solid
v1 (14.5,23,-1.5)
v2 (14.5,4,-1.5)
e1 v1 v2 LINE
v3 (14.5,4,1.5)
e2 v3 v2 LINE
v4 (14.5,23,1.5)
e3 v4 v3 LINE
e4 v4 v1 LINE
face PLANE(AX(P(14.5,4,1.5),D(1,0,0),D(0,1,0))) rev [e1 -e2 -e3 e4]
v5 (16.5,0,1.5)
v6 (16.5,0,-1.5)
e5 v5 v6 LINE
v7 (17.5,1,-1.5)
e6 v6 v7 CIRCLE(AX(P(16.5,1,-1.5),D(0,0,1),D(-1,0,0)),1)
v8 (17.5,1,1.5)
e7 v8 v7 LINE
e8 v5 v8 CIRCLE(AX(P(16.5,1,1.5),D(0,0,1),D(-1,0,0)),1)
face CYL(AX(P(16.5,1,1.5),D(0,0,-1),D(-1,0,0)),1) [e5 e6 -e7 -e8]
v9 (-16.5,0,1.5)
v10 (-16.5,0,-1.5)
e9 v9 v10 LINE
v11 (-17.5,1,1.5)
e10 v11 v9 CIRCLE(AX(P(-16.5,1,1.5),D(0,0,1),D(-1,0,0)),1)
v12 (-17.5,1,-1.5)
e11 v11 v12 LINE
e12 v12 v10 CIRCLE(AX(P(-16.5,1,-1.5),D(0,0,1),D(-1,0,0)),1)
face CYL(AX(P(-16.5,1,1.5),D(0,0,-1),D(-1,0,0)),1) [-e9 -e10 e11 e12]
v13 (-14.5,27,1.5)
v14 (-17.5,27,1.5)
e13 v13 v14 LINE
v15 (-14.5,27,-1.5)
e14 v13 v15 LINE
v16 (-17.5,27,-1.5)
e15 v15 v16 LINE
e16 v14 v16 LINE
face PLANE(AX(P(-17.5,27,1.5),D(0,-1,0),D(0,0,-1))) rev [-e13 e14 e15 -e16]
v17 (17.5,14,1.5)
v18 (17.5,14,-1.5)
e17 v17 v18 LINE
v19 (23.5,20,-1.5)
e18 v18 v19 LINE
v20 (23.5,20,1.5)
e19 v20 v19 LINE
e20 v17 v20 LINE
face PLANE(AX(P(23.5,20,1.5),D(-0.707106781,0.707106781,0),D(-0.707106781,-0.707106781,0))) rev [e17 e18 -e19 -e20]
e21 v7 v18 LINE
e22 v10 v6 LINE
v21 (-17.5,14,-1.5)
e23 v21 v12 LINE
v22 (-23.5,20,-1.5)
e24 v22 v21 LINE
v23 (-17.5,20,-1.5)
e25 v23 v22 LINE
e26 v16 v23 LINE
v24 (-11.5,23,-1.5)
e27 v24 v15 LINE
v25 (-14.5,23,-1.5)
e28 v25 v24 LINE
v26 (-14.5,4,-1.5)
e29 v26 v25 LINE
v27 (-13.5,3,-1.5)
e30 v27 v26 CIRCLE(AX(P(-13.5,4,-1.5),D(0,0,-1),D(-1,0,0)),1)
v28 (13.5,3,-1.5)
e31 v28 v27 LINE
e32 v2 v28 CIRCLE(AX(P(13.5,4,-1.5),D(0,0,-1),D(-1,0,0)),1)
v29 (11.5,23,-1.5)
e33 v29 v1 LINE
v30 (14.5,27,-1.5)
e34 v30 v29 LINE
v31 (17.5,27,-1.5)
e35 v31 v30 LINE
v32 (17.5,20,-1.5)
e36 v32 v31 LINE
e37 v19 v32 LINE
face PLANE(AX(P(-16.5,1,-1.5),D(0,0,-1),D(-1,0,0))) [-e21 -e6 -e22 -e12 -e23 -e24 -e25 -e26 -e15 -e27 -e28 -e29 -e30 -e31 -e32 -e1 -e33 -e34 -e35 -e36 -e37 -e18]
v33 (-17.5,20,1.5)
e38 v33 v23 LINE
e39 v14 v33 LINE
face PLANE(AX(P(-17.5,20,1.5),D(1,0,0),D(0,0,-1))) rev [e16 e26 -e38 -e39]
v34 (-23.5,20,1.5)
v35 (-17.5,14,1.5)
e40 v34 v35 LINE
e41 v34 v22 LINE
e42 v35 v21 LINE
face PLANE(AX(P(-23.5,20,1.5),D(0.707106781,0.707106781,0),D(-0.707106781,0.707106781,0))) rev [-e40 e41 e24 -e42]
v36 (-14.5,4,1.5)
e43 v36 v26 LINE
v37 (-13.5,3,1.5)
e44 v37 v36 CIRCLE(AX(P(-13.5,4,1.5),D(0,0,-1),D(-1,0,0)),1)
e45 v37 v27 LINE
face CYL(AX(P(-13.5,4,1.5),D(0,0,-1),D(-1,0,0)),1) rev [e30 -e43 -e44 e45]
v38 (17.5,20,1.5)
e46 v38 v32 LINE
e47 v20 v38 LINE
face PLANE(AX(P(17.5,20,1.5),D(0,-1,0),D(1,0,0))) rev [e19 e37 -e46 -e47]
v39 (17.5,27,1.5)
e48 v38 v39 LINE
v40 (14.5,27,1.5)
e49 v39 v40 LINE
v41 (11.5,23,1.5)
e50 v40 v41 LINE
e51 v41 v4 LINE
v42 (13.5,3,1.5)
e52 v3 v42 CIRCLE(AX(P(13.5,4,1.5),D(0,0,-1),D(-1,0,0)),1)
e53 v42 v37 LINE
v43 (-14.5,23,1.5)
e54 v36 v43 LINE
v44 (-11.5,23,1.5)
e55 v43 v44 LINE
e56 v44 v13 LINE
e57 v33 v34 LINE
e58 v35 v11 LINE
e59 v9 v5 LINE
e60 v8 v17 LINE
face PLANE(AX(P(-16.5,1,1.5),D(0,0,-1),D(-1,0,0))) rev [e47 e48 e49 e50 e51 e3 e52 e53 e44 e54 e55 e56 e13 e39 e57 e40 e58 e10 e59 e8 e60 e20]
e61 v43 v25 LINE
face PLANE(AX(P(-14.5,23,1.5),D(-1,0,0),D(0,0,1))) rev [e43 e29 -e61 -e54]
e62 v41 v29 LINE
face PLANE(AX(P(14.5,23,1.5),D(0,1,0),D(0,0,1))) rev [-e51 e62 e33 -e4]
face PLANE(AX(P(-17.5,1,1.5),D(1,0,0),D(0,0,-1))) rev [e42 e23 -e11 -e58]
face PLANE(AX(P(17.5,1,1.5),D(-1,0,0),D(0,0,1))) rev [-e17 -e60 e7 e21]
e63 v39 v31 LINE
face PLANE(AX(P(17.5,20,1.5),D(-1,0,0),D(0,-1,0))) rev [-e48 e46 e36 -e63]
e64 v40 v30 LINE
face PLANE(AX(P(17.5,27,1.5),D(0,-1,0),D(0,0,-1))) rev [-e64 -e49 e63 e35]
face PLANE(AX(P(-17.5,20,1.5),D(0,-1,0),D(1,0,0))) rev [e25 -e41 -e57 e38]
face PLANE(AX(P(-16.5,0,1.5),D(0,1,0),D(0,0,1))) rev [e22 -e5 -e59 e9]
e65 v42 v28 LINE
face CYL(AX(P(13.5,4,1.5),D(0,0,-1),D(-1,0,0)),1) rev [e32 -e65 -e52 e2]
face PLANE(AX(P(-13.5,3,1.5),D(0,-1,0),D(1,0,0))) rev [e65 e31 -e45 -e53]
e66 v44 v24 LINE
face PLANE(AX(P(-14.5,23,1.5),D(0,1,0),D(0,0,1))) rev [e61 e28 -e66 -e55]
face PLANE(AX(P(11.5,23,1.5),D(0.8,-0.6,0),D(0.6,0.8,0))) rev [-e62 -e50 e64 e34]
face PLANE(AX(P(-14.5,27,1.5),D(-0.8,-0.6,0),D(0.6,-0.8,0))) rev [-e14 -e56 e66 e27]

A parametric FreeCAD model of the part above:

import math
import FreeCAD as App
import Part
import Sketcher

doc = App.newDocument("Part")
body = doc.addObject("PartDesign::Body", "Body")

sketch1 = doc.addObject("Sketcher::SketchObject", "Sketch")
body.addObject(sketch1)
sketch1.AttachmentSupport = (doc.XY_Plane, [""])
sketch1.MapMode = "FlatFace"
sketch1.addGeometry(Part.LineSegment(App.Vector(13.5, 3, 0), App.Vector(-13.5, 3, 0)), False)
sketch1.addGeometry(Part.ArcOfCircle(Part.Circle(App.Vector(-13.5, 4, 0), App.Vector(0, 0, 1), 1), math.radians(-180), math.radians(-90)), False)
sketch1.addGeometry(Part.LineSegment(App.Vector(-14.5, 4, 0), App.Vector(-14.5, 23, 0)), False)
sketch1.addGeometry(Part.LineSegment(App.Vector(-14.5, 23, 0), App.Vector(-11.5, 23, 0)), False)
sketch1.addGeometry(Part.LineSegment(App.Vector(-11.5, 23, 0), App.Vector(-14.5, 27, 0)), False)
sketch1.addGeometry(Part.LineSegment(App.Vector(-14.5, 27, 0), App.Vector(-17.5, 27, 0)), False)
sketch1.addGeometry(Part.LineSegment(App.Vector(-17.5, 27, 0), App.Vector(-17.5, 20, 0)), False)
sketch1.addGeometry(Part.LineSegment(App.Vector(-17.5, 20, 0), App.Vector(-23.5, 20, 0)), False)
sketch1.addGeometry(Part.LineSegment(App.Vector(-23.5, 20, 0), App.Vector(-17.5, 14, 0)), False)
sketch1.addGeometry(Part.LineSegment(App.Vector(-17.5, 14, 0), App.Vector(-17.5, 1, 0)), False)
sketch1.addGeometry(Part.ArcOfCircle(Part.Circle(App.Vector(-16.5, 1, 0), App.Vector(0, 0, 1), 1), math.radians(-180), math.radians(-90)), False)
sketch1.addGeometry(Part.LineSegment(App.Vector(-16.5, 0, 0), App.Vector(16.5, 0, 0)), False)
sketch1.addGeometry(Part.ArcOfCircle(Part.Circle(App.Vector(16.5, 1, 0), App.Vector(0, 0, 1), 1), math.radians(-90), math.radians(0)), False)
sketch1.addGeometry(Part.LineSegment(App.Vector(17.5, 1, 0), App.Vector(17.5, 14, 0)), False)
sketch1.addGeometry(Part.LineSegment(App.Vector(17.5, 14, 0), App.Vector(23.5, 20, 0)), False)
sketch1.addGeometry(Part.LineSegment(App.Vector(23.5, 20, 0), App.Vector(17.5, 20, 0)), False)
sketch1.addGeometry(Part.LineSegment(App.Vector(17.5, 20, 0), App.Vector(17.5, 27, 0)), False)
sketch1.addGeometry(Part.LineSegment(App.Vector(17.5, 27, 0), App.Vector(14.5, 27, 0)), False)
sketch1.addGeometry(Part.LineSegment(App.Vector(14.5, 27, 0), App.Vector(11.5, 23, 0)), False)
sketch1.addGeometry(Part.LineSegment(App.Vector(11.5, 23, 0), App.Vector(14.5, 23, 0)), False)
sketch1.addGeometry(Part.LineSegment(App.Vector(14.5, 23, 0), App.Vector(14.5, 4, 0)), False)
sketch1.addGeometry(Part.ArcOfCircle(Part.Circle(App.Vector(13.5, 4, 0), App.Vector(0, 0, 1), 1), math.radians(-90), math.radians(0)), False)
sketch1.addConstraint(Sketcher.Constraint("Tangent", 0, 2, 1, 2))
sketch1.addConstraint(Sketcher.Constraint("Tangent", 1, 1, 2, 1))
sketch1.addConstraint(Sketcher.Constraint("Coincident", 2, 2, 3, 1))
sketch1.addConstraint(Sketcher.Constraint("Coincident", 3, 2, 4, 1))
sketch1.addConstraint(Sketcher.Constraint("Coincident", 4, 2, 5, 1))
sketch1.addConstraint(Sketcher.Constraint("Coincident", 5, 2, 6, 1))
sketch1.addConstraint(Sketcher.Constraint("Coincident", 6, 2, 7, 1))
sketch1.addConstraint(Sketcher.Constraint("Coincident", 7, 2, 8, 1))
sketch1.addConstraint(Sketcher.Constraint("Coincident", 8, 2, 9, 1))
sketch1.addConstraint(Sketcher.Constraint("Tangent", 9, 2, 10, 1))
sketch1.addConstraint(Sketcher.Constraint("Tangent", 10, 2, 11, 1))
sketch1.addConstraint(Sketcher.Constraint("Tangent", 11, 2, 12, 1))
sketch1.addConstraint(Sketcher.Constraint("Tangent", 12, 2, 13, 1))
sketch1.addConstraint(Sketcher.Constraint("Coincident", 13, 2, 14, 1))
sketch1.addConstraint(Sketcher.Constraint("Coincident", 14, 2, 15, 1))
sketch1.addConstraint(Sketcher.Constraint("Coincident", 15, 2, 16, 1))
sketch1.addConstraint(Sketcher.Constraint("Coincident", 16, 2, 17, 1))
sketch1.addConstraint(Sketcher.Constraint("Coincident", 17, 2, 18, 1))
sketch1.addConstraint(Sketcher.Constraint("Coincident", 18, 2, 19, 1))
sketch1.addConstraint(Sketcher.Constraint("Coincident", 19, 2, 20, 1))
sketch1.addConstraint(Sketcher.Constraint("Tangent", 20, 2, 21, 2))
sketch1.addConstraint(Sketcher.Constraint("Tangent", 21, 1, 0, 1))
sketch1.addConstraint(Sketcher.Constraint("Horizontal", 0))
sketch1.addConstraint(Sketcher.Constraint("Vertical", 2))
sketch1.addConstraint(Sketcher.Constraint("Horizontal", 3))
sketch1.addConstraint(Sketcher.Constraint("Horizontal", 5))
sketch1.addConstraint(Sketcher.Constraint("Vertical", 6))
sketch1.addConstraint(Sketcher.Constraint("Horizontal", 7))
sketch1.addConstraint(Sketcher.Constraint("Vertical", 9))
sketch1.addConstraint(Sketcher.Constraint("Horizontal", 11))
sketch1.addConstraint(Sketcher.Constraint("Vertical", 13))
sketch1.addConstraint(Sketcher.Constraint("Horizontal", 15))
sketch1.addConstraint(Sketcher.Constraint("Vertical", 16))
sketch1.addConstraint(Sketcher.Constraint("Horizontal", 17))
sketch1.addConstraint(Sketcher.Constraint("Horizontal", 19))
sketch1.addConstraint(Sketcher.Constraint("Vertical", 20))
sketch1.addConstraint(Sketcher.Constraint("Equal", 1, 10))
sketch1.addConstraint(Sketcher.Constraint("Equal", 10, 12))
sketch1.addConstraint(Sketcher.Constraint("Equal", 12, 21))
sketch1.addConstraint(Sketcher.Constraint("Symmetric", 10, 2, 11, 2, -1, 1))
sketch1.addConstraint(Sketcher.Constraint("Symmetric", 7, 2, 14, 2, -2))
sketch1.addConstraint(Sketcher.Constraint("Symmetric", 5, 2, 16, 2, -2))
sketch1.addConstraint(Sketcher.Constraint("Symmetric", 3, 2, 18, 2, -2))
sketch1.addConstraint(Sketcher.Constraint("Perpendicular", 8, 14))
sketch1.addConstraint(Sketcher.Constraint("Horizontal", 8, 2, 13, 2))
sketch1.addConstraint(Sketcher.Constraint("Vertical", 2, 2, 4, 2))
sketch1.addConstraint(Sketcher.Constraint("Vertical", 6, 2, 8, 2))
sketch1.addConstraint(Sketcher.Constraint("Vertical", 17, 2, 19, 2))
sketch1.addConstraint(Sketcher.Constraint("Equal", 3, 5))
sketch1.addConstraint(Sketcher.Constraint("Equal", 5, 17))
sketch1.addConstraint(Sketcher.Constraint("Radius", 1, 1.0))
sketch1.addConstraint(Sketcher.Constraint("DistanceX", 0, 2, 0, 1, 27.0))
sketch1.addConstraint(Sketcher.Constraint("DistanceX", 3, 1, 3, 2, 3.0))
sketch1.addConstraint(Sketcher.Constraint("DistanceX", 7, 2, 7, 1, 6.0))
sketch1.addConstraint(Sketcher.Constraint("DistanceY", 2, 1, 2, 2, 19.0))
sketch1.addConstraint(Sketcher.Constraint("DistanceY", 6, 2, 6, 1, 7.0))
sketch1.addConstraint(Sketcher.Constraint("DistanceY", 9, 2, 9, 1, 13.0))
sketch1.addConstraint(Sketcher.Constraint("Distance", 4, 5.0))
pad1 = doc.addObject("PartDesign::Pad", "Pad")
body.addObject(pad1)
pad1.Profile = sketch1
pad1.Length = 3
pad1.Midplane = True

doc.recompute()
